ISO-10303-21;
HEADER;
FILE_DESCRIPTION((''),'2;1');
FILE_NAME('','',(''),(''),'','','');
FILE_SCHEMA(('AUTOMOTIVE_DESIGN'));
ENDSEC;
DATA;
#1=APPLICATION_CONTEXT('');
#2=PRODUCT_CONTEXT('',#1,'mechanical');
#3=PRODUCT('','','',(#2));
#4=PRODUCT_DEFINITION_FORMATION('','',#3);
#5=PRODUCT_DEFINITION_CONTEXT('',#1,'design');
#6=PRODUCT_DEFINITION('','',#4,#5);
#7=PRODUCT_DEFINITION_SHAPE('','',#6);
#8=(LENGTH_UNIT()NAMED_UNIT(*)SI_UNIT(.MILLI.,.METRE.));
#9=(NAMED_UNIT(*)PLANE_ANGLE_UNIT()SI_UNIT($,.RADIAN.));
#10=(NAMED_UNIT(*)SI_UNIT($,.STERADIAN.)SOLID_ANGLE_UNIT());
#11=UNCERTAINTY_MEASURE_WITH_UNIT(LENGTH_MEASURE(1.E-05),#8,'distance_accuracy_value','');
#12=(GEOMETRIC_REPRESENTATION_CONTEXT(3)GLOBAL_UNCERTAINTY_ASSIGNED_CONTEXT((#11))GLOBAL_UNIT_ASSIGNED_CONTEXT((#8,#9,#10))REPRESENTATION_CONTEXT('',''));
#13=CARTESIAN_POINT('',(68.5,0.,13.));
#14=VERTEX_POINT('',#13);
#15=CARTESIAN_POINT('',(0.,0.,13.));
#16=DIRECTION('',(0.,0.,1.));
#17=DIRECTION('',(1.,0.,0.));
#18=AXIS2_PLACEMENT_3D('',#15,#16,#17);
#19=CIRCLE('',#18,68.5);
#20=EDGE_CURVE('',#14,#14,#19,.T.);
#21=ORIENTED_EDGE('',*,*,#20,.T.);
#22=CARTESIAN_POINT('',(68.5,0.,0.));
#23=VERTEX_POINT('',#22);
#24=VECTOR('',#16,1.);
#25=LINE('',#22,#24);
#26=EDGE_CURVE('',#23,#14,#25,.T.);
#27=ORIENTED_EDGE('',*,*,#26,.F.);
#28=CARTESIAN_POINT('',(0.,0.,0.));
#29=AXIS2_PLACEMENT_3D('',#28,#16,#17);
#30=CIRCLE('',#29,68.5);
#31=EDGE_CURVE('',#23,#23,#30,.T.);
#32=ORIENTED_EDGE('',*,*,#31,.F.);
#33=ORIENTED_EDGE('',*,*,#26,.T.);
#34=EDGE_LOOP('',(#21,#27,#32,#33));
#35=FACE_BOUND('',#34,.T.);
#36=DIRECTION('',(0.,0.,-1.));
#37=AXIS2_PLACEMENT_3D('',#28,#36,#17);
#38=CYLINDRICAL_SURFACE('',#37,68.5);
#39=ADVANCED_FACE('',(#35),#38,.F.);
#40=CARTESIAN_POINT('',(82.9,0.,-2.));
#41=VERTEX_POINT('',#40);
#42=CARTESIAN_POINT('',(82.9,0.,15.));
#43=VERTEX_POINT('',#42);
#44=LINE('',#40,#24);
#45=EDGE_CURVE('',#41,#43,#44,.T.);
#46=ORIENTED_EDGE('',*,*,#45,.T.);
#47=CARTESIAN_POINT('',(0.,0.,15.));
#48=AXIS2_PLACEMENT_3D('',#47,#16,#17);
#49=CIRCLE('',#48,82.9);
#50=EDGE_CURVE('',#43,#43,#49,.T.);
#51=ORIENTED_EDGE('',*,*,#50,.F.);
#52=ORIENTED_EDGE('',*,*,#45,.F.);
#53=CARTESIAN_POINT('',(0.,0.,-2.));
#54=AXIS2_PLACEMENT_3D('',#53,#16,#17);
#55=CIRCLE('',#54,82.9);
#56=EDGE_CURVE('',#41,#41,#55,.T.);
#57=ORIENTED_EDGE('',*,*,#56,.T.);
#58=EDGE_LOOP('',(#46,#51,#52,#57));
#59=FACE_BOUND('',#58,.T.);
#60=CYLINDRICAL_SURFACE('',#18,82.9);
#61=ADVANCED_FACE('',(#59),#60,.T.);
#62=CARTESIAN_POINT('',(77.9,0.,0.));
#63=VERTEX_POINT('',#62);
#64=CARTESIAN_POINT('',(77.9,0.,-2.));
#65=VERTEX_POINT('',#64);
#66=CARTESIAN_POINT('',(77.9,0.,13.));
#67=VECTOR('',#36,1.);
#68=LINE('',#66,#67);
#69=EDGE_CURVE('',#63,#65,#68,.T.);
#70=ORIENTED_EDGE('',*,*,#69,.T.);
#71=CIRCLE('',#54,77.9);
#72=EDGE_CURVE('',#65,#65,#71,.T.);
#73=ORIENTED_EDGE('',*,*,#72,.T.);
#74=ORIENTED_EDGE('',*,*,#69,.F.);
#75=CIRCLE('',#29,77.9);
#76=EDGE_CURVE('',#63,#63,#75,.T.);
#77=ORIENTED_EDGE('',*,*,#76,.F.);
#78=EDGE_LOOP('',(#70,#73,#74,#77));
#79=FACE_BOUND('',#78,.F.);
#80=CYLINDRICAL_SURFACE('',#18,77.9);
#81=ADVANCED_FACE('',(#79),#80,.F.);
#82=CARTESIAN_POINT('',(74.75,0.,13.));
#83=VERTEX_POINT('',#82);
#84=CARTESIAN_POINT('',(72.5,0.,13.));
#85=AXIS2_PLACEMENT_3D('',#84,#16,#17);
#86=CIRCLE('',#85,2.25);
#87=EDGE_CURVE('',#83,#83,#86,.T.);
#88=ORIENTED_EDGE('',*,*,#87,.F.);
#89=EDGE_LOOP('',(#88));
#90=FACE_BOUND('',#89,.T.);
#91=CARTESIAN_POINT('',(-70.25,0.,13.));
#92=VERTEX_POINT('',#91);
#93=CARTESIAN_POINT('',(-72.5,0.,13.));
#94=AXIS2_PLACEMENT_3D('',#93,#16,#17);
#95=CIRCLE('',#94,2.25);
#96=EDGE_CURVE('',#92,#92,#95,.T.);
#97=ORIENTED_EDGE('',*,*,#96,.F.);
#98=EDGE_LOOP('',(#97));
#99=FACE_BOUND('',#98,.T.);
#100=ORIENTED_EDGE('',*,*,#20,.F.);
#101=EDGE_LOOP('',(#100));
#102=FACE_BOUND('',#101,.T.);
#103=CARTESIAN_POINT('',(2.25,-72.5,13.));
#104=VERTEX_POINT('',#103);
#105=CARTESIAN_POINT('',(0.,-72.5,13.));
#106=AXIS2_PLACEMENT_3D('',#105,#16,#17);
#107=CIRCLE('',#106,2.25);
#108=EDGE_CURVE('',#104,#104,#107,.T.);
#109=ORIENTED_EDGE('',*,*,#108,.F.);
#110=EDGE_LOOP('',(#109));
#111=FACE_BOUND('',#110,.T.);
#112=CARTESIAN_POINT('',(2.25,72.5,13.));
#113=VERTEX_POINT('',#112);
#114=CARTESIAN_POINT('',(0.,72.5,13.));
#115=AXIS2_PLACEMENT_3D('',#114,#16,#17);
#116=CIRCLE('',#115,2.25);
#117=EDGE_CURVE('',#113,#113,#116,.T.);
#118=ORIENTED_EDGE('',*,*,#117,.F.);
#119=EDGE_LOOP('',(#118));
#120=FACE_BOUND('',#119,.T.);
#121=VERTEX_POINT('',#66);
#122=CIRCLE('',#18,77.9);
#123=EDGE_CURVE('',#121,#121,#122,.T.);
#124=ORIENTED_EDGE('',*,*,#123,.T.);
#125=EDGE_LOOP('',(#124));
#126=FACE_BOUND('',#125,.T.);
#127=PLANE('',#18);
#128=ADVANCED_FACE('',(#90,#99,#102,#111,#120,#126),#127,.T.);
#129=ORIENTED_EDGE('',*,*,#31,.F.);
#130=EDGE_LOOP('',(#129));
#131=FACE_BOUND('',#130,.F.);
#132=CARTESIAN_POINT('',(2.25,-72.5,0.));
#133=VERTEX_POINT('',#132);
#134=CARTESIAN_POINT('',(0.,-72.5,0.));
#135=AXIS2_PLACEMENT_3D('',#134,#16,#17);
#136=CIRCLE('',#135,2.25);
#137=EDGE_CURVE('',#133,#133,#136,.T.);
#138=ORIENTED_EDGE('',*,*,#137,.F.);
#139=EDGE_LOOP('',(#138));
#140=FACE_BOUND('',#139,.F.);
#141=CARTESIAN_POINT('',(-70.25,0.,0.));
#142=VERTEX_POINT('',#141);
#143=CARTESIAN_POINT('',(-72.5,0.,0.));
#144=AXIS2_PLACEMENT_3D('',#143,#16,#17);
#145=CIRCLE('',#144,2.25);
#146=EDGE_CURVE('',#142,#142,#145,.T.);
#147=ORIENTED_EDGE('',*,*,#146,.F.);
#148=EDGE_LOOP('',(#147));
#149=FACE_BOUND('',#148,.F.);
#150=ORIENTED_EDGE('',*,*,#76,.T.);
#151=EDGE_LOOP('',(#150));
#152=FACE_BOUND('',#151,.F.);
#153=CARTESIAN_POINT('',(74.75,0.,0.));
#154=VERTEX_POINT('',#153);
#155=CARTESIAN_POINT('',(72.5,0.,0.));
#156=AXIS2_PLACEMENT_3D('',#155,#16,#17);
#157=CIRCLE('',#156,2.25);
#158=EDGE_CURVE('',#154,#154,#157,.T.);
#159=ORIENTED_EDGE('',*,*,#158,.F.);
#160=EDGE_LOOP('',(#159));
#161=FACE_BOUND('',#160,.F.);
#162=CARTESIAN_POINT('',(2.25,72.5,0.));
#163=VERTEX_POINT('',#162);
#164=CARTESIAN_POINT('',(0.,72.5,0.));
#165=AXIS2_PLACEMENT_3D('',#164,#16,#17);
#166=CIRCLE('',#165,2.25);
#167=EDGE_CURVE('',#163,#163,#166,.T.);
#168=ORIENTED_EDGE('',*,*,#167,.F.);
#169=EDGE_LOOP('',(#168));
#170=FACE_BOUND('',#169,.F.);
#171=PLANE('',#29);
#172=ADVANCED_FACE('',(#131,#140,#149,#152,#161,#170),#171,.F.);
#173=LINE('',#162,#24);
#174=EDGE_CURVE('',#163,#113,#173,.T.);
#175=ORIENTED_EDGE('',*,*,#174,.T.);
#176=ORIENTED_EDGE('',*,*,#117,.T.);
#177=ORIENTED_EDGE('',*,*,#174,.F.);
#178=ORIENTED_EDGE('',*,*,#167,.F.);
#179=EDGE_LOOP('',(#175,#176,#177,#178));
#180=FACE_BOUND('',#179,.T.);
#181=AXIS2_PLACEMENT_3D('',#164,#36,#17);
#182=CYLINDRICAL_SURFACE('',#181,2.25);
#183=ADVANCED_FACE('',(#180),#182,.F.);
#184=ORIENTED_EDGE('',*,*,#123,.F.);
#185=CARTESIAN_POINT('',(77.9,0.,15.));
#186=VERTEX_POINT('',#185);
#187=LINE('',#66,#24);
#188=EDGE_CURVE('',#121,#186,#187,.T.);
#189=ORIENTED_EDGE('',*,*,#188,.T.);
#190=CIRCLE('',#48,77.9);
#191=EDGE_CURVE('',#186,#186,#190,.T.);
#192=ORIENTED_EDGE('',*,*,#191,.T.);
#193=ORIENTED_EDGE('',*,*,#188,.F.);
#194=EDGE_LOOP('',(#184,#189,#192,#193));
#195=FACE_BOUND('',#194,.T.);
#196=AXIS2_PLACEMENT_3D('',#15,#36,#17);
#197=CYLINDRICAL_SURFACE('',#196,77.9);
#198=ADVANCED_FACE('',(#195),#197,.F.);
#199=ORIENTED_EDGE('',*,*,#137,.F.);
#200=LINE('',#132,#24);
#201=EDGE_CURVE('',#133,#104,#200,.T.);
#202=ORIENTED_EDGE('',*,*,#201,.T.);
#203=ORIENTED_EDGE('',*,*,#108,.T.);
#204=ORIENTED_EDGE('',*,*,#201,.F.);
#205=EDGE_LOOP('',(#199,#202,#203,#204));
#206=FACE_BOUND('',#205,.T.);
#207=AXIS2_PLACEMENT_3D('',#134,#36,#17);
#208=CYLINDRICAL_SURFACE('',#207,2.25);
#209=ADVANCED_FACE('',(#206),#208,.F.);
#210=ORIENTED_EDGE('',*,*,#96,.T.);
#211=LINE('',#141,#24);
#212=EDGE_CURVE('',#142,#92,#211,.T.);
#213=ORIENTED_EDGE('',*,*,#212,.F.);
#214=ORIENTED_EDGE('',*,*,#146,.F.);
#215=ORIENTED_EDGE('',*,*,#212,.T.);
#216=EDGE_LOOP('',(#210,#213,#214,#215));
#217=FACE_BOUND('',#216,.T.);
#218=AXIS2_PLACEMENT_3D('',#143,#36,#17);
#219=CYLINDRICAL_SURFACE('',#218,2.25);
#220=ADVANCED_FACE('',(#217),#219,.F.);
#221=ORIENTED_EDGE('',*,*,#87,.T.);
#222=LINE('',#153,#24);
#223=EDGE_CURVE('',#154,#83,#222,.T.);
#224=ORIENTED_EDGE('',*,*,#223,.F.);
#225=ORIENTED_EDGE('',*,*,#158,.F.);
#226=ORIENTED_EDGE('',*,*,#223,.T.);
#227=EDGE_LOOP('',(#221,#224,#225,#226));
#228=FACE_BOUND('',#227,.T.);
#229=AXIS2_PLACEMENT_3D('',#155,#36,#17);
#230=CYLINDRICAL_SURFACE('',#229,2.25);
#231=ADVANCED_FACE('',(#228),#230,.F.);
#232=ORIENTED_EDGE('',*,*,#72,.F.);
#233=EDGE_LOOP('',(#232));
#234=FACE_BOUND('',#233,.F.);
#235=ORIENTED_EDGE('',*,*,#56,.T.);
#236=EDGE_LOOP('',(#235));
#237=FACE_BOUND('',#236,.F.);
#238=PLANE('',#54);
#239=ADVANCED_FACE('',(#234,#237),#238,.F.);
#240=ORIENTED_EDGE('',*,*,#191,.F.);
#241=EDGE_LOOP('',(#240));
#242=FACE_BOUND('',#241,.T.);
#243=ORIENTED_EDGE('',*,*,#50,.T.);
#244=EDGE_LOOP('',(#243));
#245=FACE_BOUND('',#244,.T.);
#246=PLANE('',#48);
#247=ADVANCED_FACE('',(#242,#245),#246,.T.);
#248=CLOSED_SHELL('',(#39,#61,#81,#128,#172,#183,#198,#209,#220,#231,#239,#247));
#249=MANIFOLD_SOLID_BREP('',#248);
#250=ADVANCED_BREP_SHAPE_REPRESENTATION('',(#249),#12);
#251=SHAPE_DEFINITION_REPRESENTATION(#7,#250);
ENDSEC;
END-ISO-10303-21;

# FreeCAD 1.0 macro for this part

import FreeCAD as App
import Part
import Sketcher
from FreeCAD import Vector
Q = App.Units.Quantity

doc = App.newDocument("Part")
body = doc.addObject("PartDesign::Body", "Body")

# Sketch on XY plane
sketch1 = body.newObject("Sketcher::SketchObject", "Sketch")
sketch1.AttachmentSupport = (doc.getObject("XY_Plane"), [""])
sketch1.MapMode = "FlatFace"
sketch1.addGeometry([
    Part.Circle(Vector(0, 0, 0), Vector(0, 0, 1), 77.9),  # 0
    Part.Circle(Vector(0, -72.5, 0), Vector(0, 0, 1), 2.25),  # 1
    Part.Circle(Vector(-72.5, 0, 0), Vector(0, 0, 1), 2.25),  # 2
    Part.Circle(Vector(0, 0, 0), Vector(0, 0, 1), 68.5),  # 3
    Part.Circle(Vector(72.5, 0, 0), Vector(0, 0, 1), 2.25),  # 4
    Part.Circle(Vector(0, 72.5, 0), Vector(0, 0, 1), 2.25),  # 5
], False)
sketch1.addConstraint([
    Sketcher.Constraint("Coincident", 0, 3, -1, 1),
    Sketcher.Constraint("Coincident", 3, 3, -1, 1),
    Sketcher.Constraint("Equal", 1, 2),
    Sketcher.Constraint("Equal", 2, 4),
    Sketcher.Constraint("Equal", 4, 5),
    Sketcher.Constraint("Symmetric", 2, 3, 4, 3, -1, 1),
    Sketcher.Constraint("Symmetric", 1, 3, 5, 3, -1, 1),
    Sketcher.Constraint("PointOnObject", 1, 3, -2),
    Sketcher.Constraint("PointOnObject", 2, 3, -1),
    Sketcher.Constraint("Diameter", 3, Q("137 mm")),
    Sketcher.Constraint("Diameter", 0, Q("155.8 mm")),
    Sketcher.Constraint("Diameter", 1, Q("4.5 mm")),
    Sketcher.Constraint("DistanceX", 2, 3, 4, 3, Q("145 mm")),
    Sketcher.Constraint("DistanceY", 1, 3, 5, 3, Q("145 mm")),
])
pad1 = body.newObject("PartDesign::Pad", "Pad")
pad1.Profile = sketch1
pad1.Length = 13

# Sketch on XY plane
sketch2 = body.newObject("Sketcher::SketchObject", "Sketch001")
sketch2.AttachmentSupport = (doc.getObject("XY_Plane"), [""])
sketch2.MapMode = "FlatFace"
sketch2.AttachmentOffset = App.Placement(Vector(0, 0, 13), App.Rotation())
sketch2.addGeometry([
    Part.Circle(Vector(0, 0, 0), Vector(0, 0, 1), 82.9),
    Part.Circle(Vector(0, 0, 0), Vector(0, 0, 1), 77.9),
], False)
sketch2.addConstraint([
    Sketcher.Constraint("Coincident", 0, 3, -1, 1),
    Sketcher.Constraint("Coincident", 1, 3, -1, 1),
    Sketcher.Constraint("Diameter", 0, Q("165.8 mm")),
    Sketcher.Constraint("Diameter", 1, Q("155.8 mm")),
])
pad2 = body.newObject("PartDesign::Pad", "Pad001")
pad2.Profile = sketch2
pad2.Type = "TwoLengths"
pad2.Length = 2
pad2.Length2 = 15

doc.recompute()
